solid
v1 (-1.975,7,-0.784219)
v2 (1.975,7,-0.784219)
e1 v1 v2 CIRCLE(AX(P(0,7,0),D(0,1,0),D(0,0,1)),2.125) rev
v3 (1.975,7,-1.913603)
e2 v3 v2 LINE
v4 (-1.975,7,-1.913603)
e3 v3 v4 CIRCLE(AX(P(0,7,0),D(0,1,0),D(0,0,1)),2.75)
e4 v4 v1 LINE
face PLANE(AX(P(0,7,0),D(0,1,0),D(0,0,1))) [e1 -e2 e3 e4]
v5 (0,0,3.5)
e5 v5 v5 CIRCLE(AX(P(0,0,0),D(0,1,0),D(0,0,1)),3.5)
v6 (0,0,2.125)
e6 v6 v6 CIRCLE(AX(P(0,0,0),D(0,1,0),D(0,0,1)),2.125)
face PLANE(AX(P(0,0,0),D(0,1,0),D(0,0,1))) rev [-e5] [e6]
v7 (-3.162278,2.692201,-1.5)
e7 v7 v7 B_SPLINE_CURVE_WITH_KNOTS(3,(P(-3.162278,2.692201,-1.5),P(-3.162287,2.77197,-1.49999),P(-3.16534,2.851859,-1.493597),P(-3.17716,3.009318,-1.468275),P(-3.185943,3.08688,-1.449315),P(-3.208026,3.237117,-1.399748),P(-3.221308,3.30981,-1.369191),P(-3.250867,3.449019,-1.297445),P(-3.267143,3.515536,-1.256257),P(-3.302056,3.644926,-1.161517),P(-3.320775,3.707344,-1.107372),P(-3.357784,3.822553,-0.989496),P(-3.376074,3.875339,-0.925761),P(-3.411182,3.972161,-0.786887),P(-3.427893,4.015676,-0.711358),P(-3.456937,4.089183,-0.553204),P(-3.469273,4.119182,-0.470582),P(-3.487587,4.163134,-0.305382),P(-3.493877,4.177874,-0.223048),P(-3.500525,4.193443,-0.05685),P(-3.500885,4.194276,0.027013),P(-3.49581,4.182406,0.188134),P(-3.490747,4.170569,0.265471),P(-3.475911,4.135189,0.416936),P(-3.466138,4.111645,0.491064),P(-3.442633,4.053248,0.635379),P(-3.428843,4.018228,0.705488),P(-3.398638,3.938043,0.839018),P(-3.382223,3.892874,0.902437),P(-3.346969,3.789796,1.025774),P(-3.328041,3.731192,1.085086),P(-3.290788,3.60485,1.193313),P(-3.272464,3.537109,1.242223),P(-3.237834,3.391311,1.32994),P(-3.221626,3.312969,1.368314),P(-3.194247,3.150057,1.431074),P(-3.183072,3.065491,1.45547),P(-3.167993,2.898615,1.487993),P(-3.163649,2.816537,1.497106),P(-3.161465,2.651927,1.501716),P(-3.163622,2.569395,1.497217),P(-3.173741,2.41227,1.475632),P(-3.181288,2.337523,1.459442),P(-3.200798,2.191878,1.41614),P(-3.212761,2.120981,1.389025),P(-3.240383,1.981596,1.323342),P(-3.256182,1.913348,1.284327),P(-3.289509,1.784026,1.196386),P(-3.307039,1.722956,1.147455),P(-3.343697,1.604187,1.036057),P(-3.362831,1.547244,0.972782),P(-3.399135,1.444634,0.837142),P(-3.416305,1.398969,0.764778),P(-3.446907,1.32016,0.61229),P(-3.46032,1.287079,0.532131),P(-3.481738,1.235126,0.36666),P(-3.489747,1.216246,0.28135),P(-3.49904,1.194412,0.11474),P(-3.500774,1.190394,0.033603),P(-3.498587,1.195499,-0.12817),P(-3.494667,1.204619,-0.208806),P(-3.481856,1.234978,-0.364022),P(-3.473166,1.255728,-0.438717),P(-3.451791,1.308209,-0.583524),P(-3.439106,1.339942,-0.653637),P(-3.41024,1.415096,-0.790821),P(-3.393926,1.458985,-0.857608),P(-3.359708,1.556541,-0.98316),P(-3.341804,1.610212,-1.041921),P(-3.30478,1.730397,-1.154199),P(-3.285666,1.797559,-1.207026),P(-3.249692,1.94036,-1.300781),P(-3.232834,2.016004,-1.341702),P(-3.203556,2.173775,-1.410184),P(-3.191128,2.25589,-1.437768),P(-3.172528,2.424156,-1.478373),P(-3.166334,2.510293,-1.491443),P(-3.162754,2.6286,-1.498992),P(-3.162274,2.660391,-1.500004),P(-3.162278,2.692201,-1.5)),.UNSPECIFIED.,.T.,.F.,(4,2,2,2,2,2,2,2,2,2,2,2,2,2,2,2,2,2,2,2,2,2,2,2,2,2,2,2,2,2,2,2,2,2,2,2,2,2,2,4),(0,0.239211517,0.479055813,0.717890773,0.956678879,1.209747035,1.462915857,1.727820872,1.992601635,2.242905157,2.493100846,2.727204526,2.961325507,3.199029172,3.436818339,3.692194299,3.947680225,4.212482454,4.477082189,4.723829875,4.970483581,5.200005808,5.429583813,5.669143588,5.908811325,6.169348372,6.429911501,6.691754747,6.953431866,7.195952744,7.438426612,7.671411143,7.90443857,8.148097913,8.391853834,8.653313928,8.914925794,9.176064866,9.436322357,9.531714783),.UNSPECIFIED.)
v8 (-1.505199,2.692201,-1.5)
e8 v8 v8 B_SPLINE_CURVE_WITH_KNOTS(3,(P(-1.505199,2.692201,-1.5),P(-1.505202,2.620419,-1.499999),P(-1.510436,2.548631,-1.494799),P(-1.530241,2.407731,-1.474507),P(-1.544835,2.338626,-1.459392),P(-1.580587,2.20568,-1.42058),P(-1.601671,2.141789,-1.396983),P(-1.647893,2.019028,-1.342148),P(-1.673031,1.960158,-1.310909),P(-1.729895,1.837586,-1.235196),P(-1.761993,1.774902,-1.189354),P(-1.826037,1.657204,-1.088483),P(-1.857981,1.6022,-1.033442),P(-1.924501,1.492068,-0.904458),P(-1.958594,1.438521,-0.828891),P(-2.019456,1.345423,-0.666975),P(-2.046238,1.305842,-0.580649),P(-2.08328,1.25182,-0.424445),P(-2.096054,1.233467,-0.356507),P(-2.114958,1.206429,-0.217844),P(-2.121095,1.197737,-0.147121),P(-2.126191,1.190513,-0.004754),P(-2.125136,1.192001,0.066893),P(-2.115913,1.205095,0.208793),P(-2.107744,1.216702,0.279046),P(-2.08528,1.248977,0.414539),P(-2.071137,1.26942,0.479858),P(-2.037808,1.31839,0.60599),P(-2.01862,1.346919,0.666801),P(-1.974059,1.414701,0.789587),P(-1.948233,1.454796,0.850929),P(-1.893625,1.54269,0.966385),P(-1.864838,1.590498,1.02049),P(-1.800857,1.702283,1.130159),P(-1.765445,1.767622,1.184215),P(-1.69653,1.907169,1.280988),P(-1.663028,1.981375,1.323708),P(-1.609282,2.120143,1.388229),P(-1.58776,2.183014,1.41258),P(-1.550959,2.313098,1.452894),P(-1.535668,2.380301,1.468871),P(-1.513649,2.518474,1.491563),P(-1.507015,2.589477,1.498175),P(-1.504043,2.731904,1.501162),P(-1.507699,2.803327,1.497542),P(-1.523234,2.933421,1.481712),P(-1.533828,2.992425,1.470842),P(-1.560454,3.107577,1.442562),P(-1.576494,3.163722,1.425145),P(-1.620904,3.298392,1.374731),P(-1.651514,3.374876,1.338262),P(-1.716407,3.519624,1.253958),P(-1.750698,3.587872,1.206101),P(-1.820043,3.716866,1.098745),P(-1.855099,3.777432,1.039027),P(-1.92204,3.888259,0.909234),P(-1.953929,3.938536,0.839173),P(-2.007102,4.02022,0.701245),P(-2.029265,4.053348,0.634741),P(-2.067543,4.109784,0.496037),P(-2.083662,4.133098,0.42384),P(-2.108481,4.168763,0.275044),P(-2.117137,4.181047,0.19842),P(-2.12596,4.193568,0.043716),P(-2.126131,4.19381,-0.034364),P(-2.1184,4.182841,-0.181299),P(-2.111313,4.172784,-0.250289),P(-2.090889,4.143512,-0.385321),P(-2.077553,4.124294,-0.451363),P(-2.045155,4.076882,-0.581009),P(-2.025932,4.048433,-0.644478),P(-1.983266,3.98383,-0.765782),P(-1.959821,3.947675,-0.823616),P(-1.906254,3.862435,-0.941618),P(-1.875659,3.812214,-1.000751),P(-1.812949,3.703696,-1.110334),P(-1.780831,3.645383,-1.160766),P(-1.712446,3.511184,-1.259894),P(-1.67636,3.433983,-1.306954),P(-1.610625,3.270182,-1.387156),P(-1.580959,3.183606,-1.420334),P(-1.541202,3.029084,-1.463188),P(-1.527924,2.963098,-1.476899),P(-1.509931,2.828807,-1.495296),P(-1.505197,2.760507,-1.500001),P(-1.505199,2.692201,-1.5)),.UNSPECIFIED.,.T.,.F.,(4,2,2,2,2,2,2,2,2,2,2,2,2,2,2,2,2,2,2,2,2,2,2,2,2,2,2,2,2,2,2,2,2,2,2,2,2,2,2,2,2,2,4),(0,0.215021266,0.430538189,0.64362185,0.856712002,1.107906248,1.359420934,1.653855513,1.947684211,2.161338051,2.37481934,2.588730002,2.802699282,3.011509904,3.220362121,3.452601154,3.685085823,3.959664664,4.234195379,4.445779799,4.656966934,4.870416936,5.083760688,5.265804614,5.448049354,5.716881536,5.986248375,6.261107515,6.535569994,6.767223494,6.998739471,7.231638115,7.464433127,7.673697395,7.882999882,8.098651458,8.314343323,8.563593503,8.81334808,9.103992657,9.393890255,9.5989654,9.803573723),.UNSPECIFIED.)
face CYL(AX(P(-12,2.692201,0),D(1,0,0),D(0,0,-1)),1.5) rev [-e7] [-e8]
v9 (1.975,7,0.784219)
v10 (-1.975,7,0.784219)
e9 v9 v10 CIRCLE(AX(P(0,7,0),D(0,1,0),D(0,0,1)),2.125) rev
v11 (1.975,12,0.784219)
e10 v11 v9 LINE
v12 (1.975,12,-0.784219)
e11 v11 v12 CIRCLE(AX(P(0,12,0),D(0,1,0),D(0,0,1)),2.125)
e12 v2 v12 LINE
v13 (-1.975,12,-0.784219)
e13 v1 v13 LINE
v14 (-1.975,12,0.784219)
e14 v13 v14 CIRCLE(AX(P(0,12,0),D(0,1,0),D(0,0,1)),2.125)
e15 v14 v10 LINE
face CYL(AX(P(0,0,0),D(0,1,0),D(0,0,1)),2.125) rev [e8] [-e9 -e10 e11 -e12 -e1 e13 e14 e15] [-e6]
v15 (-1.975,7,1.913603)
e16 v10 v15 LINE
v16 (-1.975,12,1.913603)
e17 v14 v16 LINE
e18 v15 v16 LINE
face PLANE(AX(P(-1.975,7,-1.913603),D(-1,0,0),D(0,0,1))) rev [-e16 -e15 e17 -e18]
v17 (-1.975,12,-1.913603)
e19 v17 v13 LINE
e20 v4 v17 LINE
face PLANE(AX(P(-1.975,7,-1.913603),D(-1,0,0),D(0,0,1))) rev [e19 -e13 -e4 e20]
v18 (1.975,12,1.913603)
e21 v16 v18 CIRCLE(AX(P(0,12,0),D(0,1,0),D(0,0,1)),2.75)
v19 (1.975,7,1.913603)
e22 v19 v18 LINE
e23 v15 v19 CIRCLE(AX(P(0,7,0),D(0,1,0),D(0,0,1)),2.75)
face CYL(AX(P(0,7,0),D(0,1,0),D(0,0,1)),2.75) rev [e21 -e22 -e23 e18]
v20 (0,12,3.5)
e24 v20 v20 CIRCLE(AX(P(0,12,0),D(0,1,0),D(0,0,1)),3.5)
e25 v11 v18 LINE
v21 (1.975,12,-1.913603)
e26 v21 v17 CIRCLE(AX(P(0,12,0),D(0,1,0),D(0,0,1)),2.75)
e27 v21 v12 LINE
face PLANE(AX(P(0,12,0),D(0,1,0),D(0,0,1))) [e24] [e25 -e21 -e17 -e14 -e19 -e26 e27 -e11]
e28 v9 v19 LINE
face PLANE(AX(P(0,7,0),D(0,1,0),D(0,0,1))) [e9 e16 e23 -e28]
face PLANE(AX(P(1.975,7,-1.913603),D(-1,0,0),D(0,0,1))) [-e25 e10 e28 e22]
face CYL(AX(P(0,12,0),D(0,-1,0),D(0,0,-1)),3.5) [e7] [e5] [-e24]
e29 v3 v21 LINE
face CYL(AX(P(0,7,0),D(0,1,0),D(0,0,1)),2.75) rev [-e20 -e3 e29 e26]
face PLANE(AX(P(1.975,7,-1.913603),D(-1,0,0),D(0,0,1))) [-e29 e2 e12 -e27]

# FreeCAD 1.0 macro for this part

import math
import FreeCAD as App
import Part
import Sketcher

V = App.Vector
Q = App.Units.Quantity

doc = App.newDocument("Part")
body = doc.addObject("PartDesign::Body", "Body")

sketch1 = doc.addObject("Sketcher::SketchObject", "Sketch")
body.addObject(sketch1)
sketch1.AttachmentSupport = (doc.XZ_Plane, [""])
sketch1.MapMode = "FlatFace"
sketch1.addGeometry(Part.Circle(V(0, 0, 0), V(0, 0, 1), 3.5), False)
sketch1.addConstraint([
    Sketcher.Constraint("Coincident", 0, 3, -1, 1),
    Sketcher.Constraint("Diameter", 0, Q("7 mm")),
])
pad1 = doc.addObject("PartDesign::Pad", "Pad")
body.addObject(pad1)
pad1.Profile = sketch1
pad1.Length = 12
pad1.Reversed = True

sketch2 = doc.addObject("Sketcher::SketchObject", "Sketch001")
body.addObject(sketch2)
sketch2.AttachmentSupport = (doc.XZ_Plane, [""])
sketch2.MapMode = "FlatFace"
sketch2.AttachmentOffset = App.Placement(V(0, 0, -12), App.Rotation())
sketch2.addGeometry(Part.Circle(V(0, 0, 0), V(0, 0, 1), 2.125), False)
sketch2.addConstraint([
    Sketcher.Constraint("Coincident", 0, 3, -1, 1),
    Sketcher.Constraint("Diameter", 0, Q("4.25 mm")),
])
pocket1 = doc.addObject("PartDesign::Pocket", "Pocket")
body.addObject(pocket1)
pocket1.Profile = sketch2
pocket1.Length = 12
pocket1.Reversed = True

sketch3 = doc.addObject("Sketcher::SketchObject", "Sketch002")
body.addObject(sketch3)
sketch3.AttachmentSupport = (doc.YZ_Plane, [""])
sketch3.MapMode = "FlatFace"
sketch3.addGeometry(Part.Circle(V(2.692201, 0, 0), V(0, 0, 1), 1.5), False)
sketch3.addConstraint([
    Sketcher.Constraint("PointOnObject", 0, 3, -1),
    Sketcher.Constraint("Diameter", 0, Q("3 mm")),
    Sketcher.Constraint("DistanceX", -1, 1, 0, 3, Q("2.692201 mm")),
])
pocket2 = doc.addObject("PartDesign::Pocket", "Pocket001")
body.addObject(pocket2)
pocket2.Profile = sketch3
pocket2.Length = 12

sketch4 = doc.addObject("Sketcher::SketchObject", "Sketch003")
body.addObject(sketch4)
sketch4.AttachmentSupport = (doc.XZ_Plane, [""])
sketch4.MapMode = "FlatFace"
sketch4.AttachmentOffset = App.Placement(V(0, 0, -12), App.Rotation())
sketch4.addGeometry([
    Part.LineSegment(V(-1.975, -1.913603, 0), V(-1.975, 1.913603, 0)),
    Part.ArcOfCircle(Part.Circle(V(0, 0, 0), V(0, 0, 1), 2.75), math.radians(44.095429), math.radians(135.904571)),
    Part.LineSegment(V(1.975, 1.913603, 0), V(1.975, -1.913603, 0)),
    Part.ArcOfCircle(Part.Circle(V(0, 0, 0), V(0, 0, 1), 2.75), math.radians(-135.904571), math.radians(-44.095429)),
], False)
sketch4.addConstraint([
    Sketcher.Constraint("Coincident", 0, 2, 1, 2),
    Sketcher.Constraint("Coincident", 1, 1, 2, 1),
    Sketcher.Constraint("Coincident", 2, 2, 3, 2),
    Sketcher.Constraint("Coincident", 3, 1, 0, 1),
    Sketcher.Constraint("Vertical", 0),
    Sketcher.Constraint("Vertical", 2),
    Sketcher.Constraint("Coincident", 1, 3, -1, 1),
    Sketcher.Constraint("Coincident", 3, 3, -1, 1),
    Sketcher.Constraint("Equal", 1, 3),
    Sketcher.Constraint("Horizontal", 0, 2, 1, 1),
    Sketcher.Constraint("Radius", 1, Q("2.75 mm")),
    Sketcher.Constraint("DistanceX", 0, 2, 1, 1, Q("3.95 mm")),
])
pocket3 = doc.addObject("PartDesign::Pocket", "Pocket002")
body.addObject(pocket3)
pocket3.Profile = sketch4
pocket3.Length = 5
pocket3.Reversed = True

doc.recompute()
